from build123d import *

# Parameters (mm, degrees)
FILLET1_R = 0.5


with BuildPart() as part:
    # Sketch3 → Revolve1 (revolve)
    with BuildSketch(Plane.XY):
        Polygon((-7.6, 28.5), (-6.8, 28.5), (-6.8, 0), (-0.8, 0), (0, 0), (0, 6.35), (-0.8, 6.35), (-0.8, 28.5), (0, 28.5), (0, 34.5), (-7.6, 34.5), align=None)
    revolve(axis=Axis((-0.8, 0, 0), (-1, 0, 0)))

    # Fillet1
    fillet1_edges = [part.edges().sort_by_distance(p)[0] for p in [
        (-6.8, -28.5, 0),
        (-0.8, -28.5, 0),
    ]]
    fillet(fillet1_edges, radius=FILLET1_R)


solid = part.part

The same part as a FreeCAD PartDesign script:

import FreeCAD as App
import Part
import Sketcher

V = App.Vector


def edges_at(feature, points):
    """Names of the edges that pass closest to the given points."""
    edges = feature.Shape.Edges
    near = lambda p: min(range(len(edges)), key=lambda i: edges[i].distToShape(Part.Vertex(*p))[0])
    return sorted({f"Edge{near(p) + 1}" for p in points})

doc = App.newDocument("Part")
body = doc.addObject("PartDesign::Body", "Body")

sketch1 = body.newObject("Sketcher::SketchObject", "Sketch")
sketch1.AttachmentSupport = (doc.getObject("XY_Plane"), [""])
sketch1.MapMode = "FlatFace"
sketch1.addGeometry([
    Part.LineSegment(V(-7.6, 28.5, 0), V(-6.8, 28.5, 0)),
    Part.LineSegment(V(-6.8, 28.5, 0), V(-6.8, 0, 0)),
    Part.LineSegment(V(-6.8, 0, 0), V(0, 0, 0)),
    Part.LineSegment(V(0, 0, 0), V(0, 6.35, 0)),
    Part.LineSegment(V(0, 6.35, 0), V(-0.8, 6.35, 0)),
    Part.LineSegment(V(-0.8, 6.35, 0), V(-0.8, 28.5, 0)),
    Part.LineSegment(V(-0.8, 28.5, 0), V(0, 28.5, 0)),
    Part.LineSegment(V(0, 28.5, 0), V(0, 34.5, 0)),
    Part.LineSegment(V(0, 34.5, 0), V(-7.6, 34.5, 0)),
    Part.LineSegment(V(-7.6, 34.5, 0), V(-7.6, 28.5, 0)),
], False)
sketch1.addConstraint([
    Sketcher.Constraint("Coincident", 0, 2, 1, 1),
    Sketcher.Constraint("Coincident", 1, 2, 2, 1),
    Sketcher.Constraint("Coincident", 2, 2, 3, 1),
    Sketcher.Constraint("Coincident", 3, 2, 4, 1),
    Sketcher.Constraint("Coincident", 4, 2, 5, 1),
    Sketcher.Constraint("Coincident", 5, 2, 6, 1),
    Sketcher.Constraint("Coincident", 6, 2, 7, 1),
    Sketcher.Constraint("Coincident", 7, 2, 8, 1),
    Sketcher.Constraint("Coincident", 8, 2, 9, 1),
    Sketcher.Constraint("Coincident", 9, 2, 0, 1),
    Sketcher.Constraint("Horizontal", 0),
    Sketcher.Constraint("Vertical", 1),
    Sketcher.Constraint("Horizontal", 2),
    Sketcher.Constraint("Vertical", 3),
    Sketcher.Constraint("Horizontal", 4),
    Sketcher.Constraint("Vertical", 5),
    Sketcher.Constraint("Horizontal", 6),
    Sketcher.Constraint("Vertical", 7),
    Sketcher.Constraint("Horizontal", 8),
    Sketcher.Constraint("Vertical", 9),
    Sketcher.Constraint("Coincident", 2, 2, -1, 1),
    Sketcher.Constraint("PointOnObject", 6, 2, -2),
    Sketcher.Constraint("Horizontal", 0, 2, 5, 2),
    Sketcher.Constraint("Equal", 0, 4),
    Sketcher.Constraint("DistanceY", 7, 1, 7, 2, 6.0),
    Sketcher.Constraint("DistanceX", 0, 1, 0, 2, 0.8),
    Sketcher.Constraint("DistanceX", 2, 1, 2, 2, 6.8),
    Sketcher.Constraint("DistanceY", 1, 2, 1, 1, 28.5),
    Sketcher.Constraint("DistanceY", 3, 1, 3, 2, 6.35),
])
revolution = body.newObject("PartDesign::Revolution", "Revolution")
revolution.Profile = sketch1
revolution.ReferenceAxis = (sketch1, ["H_Axis"])
revolution.Angle = 360
doc.recompute()

fillet = body.newObject("PartDesign::Fillet", "Fillet")
fillet.Base = (revolution, edges_at(revolution, [(-6.8, -28.5, 0), (-0.8, -28.5, 0)]))
fillet.Radius = 0.5

doc.recompute()
